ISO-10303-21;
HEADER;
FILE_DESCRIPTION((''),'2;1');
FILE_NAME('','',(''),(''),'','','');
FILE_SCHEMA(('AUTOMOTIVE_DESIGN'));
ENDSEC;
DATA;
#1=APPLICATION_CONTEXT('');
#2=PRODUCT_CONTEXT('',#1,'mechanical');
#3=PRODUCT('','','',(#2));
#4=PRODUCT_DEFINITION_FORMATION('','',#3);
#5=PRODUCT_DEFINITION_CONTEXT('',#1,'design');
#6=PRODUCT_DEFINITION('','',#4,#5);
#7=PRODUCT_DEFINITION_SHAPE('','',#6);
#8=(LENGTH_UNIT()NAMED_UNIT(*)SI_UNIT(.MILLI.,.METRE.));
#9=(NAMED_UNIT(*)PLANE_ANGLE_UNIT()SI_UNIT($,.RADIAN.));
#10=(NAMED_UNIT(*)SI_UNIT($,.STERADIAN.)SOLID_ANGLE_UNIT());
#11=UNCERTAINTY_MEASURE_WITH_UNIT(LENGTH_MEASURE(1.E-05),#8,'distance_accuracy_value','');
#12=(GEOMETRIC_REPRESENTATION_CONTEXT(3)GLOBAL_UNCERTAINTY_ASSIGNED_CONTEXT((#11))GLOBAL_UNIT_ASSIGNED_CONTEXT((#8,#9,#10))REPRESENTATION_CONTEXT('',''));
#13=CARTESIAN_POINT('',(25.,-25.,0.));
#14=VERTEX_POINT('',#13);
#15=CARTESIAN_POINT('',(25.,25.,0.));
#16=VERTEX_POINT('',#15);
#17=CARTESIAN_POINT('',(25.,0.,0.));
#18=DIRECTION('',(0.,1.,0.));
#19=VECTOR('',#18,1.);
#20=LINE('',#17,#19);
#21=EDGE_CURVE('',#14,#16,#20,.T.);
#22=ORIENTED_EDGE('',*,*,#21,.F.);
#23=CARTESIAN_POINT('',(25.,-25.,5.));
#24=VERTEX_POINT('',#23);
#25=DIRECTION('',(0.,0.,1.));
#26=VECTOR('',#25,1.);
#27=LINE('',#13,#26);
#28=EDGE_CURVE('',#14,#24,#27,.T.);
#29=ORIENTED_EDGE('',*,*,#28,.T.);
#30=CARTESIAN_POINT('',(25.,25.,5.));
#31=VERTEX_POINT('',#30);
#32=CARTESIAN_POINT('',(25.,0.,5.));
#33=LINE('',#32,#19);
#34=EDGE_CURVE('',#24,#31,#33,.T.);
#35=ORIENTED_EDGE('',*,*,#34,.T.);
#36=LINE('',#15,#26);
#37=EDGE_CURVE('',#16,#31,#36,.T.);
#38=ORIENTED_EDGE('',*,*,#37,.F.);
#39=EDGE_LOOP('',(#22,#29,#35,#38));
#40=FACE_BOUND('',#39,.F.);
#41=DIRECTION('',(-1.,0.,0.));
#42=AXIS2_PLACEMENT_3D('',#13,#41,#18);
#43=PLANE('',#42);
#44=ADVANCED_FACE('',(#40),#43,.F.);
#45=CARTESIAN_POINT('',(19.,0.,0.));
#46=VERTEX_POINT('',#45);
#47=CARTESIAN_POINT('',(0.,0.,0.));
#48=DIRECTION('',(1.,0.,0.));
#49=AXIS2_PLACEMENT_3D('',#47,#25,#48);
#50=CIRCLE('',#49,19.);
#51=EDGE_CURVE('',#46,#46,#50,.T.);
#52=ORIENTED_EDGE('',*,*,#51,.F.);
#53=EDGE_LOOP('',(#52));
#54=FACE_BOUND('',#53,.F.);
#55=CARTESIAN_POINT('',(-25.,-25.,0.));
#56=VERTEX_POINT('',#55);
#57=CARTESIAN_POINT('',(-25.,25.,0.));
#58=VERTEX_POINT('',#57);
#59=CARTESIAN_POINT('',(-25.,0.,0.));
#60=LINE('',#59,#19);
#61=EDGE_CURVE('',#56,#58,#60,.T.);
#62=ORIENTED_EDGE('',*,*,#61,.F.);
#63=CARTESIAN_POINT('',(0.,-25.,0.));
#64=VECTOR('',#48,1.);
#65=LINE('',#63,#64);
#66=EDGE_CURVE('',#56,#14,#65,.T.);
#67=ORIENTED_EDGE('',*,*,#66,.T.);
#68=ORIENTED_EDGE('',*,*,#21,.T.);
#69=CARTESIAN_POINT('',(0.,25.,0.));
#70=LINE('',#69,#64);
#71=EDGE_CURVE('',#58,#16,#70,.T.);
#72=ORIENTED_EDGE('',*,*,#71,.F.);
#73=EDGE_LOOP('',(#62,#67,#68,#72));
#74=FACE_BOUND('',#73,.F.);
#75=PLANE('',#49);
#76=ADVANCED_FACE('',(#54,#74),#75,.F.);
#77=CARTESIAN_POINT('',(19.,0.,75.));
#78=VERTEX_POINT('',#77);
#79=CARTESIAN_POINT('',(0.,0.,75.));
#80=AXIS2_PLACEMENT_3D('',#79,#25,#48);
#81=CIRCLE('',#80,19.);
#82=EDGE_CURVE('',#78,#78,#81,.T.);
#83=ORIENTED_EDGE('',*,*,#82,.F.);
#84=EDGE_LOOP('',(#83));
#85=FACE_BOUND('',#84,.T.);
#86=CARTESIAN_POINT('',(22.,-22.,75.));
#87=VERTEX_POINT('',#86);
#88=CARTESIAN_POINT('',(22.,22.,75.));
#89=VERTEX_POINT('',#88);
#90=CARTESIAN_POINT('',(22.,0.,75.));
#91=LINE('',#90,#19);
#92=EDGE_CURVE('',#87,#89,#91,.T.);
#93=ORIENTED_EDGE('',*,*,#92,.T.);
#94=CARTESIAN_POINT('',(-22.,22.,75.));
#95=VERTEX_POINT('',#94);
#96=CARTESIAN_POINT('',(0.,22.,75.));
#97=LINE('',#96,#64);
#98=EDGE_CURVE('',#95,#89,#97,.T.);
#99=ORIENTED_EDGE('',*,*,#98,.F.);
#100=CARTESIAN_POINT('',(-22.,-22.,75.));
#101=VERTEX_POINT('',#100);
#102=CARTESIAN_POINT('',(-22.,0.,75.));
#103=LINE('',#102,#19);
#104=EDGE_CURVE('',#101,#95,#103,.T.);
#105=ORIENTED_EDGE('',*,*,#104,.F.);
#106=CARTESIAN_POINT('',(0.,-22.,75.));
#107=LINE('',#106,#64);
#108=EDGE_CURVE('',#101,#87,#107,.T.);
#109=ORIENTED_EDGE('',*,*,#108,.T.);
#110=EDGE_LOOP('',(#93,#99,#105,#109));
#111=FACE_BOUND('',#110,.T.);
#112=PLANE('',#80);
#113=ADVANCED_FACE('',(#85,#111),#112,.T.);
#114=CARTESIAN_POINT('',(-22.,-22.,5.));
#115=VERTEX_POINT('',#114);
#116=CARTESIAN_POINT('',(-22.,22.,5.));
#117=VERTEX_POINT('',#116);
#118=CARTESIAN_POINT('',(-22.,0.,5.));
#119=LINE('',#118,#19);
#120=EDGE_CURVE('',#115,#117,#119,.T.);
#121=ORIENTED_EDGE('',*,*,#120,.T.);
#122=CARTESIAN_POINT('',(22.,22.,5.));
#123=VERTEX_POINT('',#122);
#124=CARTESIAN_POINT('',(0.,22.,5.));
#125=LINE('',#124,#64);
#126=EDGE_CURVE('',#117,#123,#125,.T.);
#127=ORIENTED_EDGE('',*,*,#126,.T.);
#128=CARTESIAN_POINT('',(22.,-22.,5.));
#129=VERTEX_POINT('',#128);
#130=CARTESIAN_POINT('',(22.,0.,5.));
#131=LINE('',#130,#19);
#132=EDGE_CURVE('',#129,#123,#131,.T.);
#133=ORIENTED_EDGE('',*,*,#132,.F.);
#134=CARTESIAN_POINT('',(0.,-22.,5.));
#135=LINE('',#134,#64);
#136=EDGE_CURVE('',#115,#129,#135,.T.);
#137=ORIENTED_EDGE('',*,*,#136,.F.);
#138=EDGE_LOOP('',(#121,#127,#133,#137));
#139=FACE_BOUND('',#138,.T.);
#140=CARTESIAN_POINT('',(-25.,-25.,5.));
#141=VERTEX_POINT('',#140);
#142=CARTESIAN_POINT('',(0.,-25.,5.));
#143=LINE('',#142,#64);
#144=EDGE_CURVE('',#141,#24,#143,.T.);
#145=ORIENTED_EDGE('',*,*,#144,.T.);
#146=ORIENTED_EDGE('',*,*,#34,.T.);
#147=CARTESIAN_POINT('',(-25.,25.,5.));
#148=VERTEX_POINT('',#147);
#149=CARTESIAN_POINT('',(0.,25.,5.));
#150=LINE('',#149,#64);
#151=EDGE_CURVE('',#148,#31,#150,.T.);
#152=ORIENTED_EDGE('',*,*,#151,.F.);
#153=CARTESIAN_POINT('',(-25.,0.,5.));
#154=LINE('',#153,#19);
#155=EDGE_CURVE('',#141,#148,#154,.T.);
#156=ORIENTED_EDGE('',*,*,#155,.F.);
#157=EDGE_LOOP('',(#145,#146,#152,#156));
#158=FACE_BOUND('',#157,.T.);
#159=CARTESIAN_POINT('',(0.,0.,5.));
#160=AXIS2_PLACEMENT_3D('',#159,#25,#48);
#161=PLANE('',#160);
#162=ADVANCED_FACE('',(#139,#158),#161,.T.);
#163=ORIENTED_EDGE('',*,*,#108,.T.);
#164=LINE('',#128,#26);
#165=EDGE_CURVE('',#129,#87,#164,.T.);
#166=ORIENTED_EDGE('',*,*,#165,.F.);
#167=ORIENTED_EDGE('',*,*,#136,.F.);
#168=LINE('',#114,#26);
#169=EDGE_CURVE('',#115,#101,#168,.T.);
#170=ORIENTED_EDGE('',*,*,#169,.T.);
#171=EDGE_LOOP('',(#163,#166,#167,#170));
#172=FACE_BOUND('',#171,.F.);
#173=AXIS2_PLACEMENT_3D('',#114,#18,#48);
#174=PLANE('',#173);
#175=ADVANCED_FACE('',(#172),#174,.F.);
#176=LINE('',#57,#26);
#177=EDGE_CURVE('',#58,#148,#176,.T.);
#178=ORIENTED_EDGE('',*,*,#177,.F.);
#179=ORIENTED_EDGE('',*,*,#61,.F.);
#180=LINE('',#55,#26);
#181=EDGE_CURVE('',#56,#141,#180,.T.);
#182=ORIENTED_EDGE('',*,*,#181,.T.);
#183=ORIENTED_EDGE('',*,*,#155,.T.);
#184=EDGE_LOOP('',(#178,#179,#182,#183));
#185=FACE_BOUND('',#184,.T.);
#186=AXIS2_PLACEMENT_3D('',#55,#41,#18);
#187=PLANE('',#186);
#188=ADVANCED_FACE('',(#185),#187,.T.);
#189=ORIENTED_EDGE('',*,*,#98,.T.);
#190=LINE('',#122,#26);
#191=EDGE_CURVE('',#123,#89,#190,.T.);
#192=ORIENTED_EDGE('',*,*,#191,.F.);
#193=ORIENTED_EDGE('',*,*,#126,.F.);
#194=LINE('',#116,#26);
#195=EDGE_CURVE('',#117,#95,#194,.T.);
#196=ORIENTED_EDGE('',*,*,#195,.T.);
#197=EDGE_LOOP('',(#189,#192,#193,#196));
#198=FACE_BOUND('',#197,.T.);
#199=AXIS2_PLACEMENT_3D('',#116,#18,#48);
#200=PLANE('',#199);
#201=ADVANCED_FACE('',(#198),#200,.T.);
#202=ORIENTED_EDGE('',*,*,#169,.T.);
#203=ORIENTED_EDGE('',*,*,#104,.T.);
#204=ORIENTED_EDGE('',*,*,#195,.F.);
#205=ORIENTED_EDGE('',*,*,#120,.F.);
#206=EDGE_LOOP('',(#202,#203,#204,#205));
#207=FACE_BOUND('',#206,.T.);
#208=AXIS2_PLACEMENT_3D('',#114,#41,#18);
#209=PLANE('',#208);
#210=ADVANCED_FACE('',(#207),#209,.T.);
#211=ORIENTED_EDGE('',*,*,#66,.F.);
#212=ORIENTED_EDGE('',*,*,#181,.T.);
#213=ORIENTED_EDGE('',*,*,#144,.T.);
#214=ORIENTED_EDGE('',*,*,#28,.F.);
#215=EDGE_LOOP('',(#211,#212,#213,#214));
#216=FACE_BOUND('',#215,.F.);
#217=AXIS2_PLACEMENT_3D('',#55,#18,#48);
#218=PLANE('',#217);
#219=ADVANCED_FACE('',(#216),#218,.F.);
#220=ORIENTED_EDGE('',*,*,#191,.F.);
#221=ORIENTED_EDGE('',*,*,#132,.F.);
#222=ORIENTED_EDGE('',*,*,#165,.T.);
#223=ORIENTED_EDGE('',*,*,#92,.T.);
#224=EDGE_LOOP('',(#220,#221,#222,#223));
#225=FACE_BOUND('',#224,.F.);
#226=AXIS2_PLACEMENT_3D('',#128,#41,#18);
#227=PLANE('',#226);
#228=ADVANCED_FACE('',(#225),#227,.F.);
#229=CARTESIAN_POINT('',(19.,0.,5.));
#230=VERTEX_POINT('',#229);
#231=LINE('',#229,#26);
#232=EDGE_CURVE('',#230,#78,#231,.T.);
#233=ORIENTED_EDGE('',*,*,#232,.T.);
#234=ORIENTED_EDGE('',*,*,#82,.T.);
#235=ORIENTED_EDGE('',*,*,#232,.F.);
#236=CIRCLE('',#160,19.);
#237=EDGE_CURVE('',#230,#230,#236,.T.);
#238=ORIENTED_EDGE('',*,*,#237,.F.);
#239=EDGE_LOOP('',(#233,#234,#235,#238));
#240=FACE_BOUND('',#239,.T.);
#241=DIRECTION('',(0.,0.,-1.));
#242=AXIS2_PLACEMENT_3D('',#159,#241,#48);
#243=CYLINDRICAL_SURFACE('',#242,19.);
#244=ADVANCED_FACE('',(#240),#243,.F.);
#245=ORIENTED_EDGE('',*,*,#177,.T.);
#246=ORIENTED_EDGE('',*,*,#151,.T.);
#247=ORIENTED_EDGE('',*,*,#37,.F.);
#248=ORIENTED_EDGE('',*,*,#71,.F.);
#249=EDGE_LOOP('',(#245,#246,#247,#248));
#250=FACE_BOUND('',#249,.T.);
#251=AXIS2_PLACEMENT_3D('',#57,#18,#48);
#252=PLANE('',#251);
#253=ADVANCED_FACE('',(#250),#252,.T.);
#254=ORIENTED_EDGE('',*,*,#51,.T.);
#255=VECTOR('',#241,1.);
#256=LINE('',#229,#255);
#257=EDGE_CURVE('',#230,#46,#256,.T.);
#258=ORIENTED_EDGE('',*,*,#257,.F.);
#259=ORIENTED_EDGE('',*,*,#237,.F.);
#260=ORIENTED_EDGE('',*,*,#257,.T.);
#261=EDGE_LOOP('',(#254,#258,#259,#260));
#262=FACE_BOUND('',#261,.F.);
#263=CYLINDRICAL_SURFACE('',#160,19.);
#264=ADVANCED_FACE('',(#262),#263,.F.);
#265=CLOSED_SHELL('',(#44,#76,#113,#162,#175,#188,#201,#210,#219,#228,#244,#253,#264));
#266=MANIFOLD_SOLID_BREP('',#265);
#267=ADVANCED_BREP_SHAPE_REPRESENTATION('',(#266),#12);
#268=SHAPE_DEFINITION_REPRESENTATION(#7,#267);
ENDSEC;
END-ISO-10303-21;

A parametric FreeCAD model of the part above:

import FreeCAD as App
import Part
import Sketcher
Q = App.Units.Quantity

doc = App.newDocument("Part")
body = doc.addObject("PartDesign::Body", "Body")

sketch1 = body.newObject("Sketcher::SketchObject", "Sketch")
sketch1.AttachmentSupport = (doc.getObject("XY_Plane"), [""])
sketch1.MapMode = "FlatFace"
sketch1.addGeometry(Part.LineSegment(App.Vector(-25, 25, 0), App.Vector(-25, -25, 0)), False)
sketch1.addGeometry(Part.LineSegment(App.Vector(-25, -25, 0), App.Vector(25, -25, 0)), False)
sketch1.addGeometry(Part.LineSegment(App.Vector(25, -25, 0), App.Vector(25, 25, 0)), False)
sketch1.addGeometry(Part.LineSegment(App.Vector(25, 25, 0), App.Vector(-25, 25, 0)), False)
sketch1.addConstraint(Sketcher.Constraint("Coincident", 0, 2, 1, 1))
sketch1.addConstraint(Sketcher.Constraint("Coincident", 1, 2, 2, 1))
sketch1.addConstraint(Sketcher.Constraint("Coincident", 2, 2, 3, 1))
sketch1.addConstraint(Sketcher.Constraint("Coincident", 3, 2, 0, 1))
sketch1.addConstraint(Sketcher.Constraint("Vertical", 0))
sketch1.addConstraint(Sketcher.Constraint("Horizontal", 1))
sketch1.addConstraint(Sketcher.Constraint("Vertical", 2))
sketch1.addConstraint(Sketcher.Constraint("Horizontal", 3))
sketch1.addConstraint(Sketcher.Constraint("Symmetric", 0, 2, 2, 2, -1, 1))
sketch1.addConstraint(Sketcher.Constraint("Equal", 3, 0))
sketch1.addConstraint(Sketcher.Constraint("DistanceX", 1, 1, 1, 2, Q("50 mm")))
pad1 = body.newObject("PartDesign::Pad", "Pad")
pad1.Profile = sketch1
pad1.Length = 5

sketch2 = body.newObject("Sketcher::SketchObject", "Sketch001")
sketch2.AttachmentSupport = (doc.getObject("XY_Plane"), [""])
sketch2.MapMode = "FlatFace"
sketch2.AttachmentOffset = App.Placement(App.Vector(0, 0, 5), App.Rotation())
sketch2.addGeometry(Part.LineSegment(App.Vector(-22, 22, 0), App.Vector(-22, -22, 0)), False)
sketch2.addGeometry(Part.LineSegment(App.Vector(-22, -22, 0), App.Vector(22, -22, 0)), False)
sketch2.addGeometry(Part.LineSegment(App.Vector(22, -22, 0), App.Vector(22, 22, 0)), False)
sketch2.addGeometry(Part.LineSegment(App.Vector(22, 22, 0), App.Vector(-22, 22, 0)), False)
sketch2.addGeometry(Part.Circle(App.Vector(0, 0, 0), App.Vector(0, 0, 1), 19), False)
sketch2.addConstraint(Sketcher.Constraint("Coincident", 0, 2, 1, 1))
sketch2.addConstraint(Sketcher.Constraint("Coincident", 1, 2, 2, 1))
sketch2.addConstraint(Sketcher.Constraint("Coincident", 2, 2, 3, 1))
sketch2.addConstraint(Sketcher.Constraint("Coincident", 3, 2, 0, 1))
sketch2.addConstraint(Sketcher.Constraint("Vertical", 0))
sketch2.addConstraint(Sketcher.Constraint("Horizontal", 1))
sketch2.addConstraint(Sketcher.Constraint("Vertical", 2))
sketch2.addConstraint(Sketcher.Constraint("Horizontal", 3))
sketch2.addConstraint(Sketcher.Constraint("Coincident", 4, 3, -1, 1))
sketch2.addConstraint(Sketcher.Constraint("Symmetric", 0, 2, 2, 2, -1, 1))
sketch2.addConstraint(Sketcher.Constraint("Equal", 3, 0))
sketch2.addConstraint(Sketcher.Constraint("Diameter", 4, Q("38 mm")))
sketch2.addConstraint(Sketcher.Constraint("DistanceX", 1, 1, 1, 2, Q("44 mm")))
pad2 = body.newObject("PartDesign::Pad", "Pad001")
pad2.Profile = sketch2
pad2.Length = 70

sketch3 = body.newObject("Sketcher::SketchObject", "Sketch002")
sketch3.AttachmentSupport = (doc.getObject("XY_Plane"), [""])
sketch3.MapMode = "FlatFace"
sketch3.AttachmentOffset = App.Placement(App.Vector(0, 0, 5), App.Rotation())
sketch3.addGeometry(Part.Circle(App.Vector(0, 0, 0), App.Vector(0, 0, 1), 19), False)
sketch3.addConstraint(Sketcher.Constraint("Coincident", 0, 3, -1, 1))
sketch3.addConstraint(Sketcher.Constraint("Diameter", 0, Q("38 mm")))
pocket1 = body.newObject("PartDesign::Pocket", "Pocket")
pocket1.Profile = sketch3
pocket1.Length = 78.5

doc.recompute()
